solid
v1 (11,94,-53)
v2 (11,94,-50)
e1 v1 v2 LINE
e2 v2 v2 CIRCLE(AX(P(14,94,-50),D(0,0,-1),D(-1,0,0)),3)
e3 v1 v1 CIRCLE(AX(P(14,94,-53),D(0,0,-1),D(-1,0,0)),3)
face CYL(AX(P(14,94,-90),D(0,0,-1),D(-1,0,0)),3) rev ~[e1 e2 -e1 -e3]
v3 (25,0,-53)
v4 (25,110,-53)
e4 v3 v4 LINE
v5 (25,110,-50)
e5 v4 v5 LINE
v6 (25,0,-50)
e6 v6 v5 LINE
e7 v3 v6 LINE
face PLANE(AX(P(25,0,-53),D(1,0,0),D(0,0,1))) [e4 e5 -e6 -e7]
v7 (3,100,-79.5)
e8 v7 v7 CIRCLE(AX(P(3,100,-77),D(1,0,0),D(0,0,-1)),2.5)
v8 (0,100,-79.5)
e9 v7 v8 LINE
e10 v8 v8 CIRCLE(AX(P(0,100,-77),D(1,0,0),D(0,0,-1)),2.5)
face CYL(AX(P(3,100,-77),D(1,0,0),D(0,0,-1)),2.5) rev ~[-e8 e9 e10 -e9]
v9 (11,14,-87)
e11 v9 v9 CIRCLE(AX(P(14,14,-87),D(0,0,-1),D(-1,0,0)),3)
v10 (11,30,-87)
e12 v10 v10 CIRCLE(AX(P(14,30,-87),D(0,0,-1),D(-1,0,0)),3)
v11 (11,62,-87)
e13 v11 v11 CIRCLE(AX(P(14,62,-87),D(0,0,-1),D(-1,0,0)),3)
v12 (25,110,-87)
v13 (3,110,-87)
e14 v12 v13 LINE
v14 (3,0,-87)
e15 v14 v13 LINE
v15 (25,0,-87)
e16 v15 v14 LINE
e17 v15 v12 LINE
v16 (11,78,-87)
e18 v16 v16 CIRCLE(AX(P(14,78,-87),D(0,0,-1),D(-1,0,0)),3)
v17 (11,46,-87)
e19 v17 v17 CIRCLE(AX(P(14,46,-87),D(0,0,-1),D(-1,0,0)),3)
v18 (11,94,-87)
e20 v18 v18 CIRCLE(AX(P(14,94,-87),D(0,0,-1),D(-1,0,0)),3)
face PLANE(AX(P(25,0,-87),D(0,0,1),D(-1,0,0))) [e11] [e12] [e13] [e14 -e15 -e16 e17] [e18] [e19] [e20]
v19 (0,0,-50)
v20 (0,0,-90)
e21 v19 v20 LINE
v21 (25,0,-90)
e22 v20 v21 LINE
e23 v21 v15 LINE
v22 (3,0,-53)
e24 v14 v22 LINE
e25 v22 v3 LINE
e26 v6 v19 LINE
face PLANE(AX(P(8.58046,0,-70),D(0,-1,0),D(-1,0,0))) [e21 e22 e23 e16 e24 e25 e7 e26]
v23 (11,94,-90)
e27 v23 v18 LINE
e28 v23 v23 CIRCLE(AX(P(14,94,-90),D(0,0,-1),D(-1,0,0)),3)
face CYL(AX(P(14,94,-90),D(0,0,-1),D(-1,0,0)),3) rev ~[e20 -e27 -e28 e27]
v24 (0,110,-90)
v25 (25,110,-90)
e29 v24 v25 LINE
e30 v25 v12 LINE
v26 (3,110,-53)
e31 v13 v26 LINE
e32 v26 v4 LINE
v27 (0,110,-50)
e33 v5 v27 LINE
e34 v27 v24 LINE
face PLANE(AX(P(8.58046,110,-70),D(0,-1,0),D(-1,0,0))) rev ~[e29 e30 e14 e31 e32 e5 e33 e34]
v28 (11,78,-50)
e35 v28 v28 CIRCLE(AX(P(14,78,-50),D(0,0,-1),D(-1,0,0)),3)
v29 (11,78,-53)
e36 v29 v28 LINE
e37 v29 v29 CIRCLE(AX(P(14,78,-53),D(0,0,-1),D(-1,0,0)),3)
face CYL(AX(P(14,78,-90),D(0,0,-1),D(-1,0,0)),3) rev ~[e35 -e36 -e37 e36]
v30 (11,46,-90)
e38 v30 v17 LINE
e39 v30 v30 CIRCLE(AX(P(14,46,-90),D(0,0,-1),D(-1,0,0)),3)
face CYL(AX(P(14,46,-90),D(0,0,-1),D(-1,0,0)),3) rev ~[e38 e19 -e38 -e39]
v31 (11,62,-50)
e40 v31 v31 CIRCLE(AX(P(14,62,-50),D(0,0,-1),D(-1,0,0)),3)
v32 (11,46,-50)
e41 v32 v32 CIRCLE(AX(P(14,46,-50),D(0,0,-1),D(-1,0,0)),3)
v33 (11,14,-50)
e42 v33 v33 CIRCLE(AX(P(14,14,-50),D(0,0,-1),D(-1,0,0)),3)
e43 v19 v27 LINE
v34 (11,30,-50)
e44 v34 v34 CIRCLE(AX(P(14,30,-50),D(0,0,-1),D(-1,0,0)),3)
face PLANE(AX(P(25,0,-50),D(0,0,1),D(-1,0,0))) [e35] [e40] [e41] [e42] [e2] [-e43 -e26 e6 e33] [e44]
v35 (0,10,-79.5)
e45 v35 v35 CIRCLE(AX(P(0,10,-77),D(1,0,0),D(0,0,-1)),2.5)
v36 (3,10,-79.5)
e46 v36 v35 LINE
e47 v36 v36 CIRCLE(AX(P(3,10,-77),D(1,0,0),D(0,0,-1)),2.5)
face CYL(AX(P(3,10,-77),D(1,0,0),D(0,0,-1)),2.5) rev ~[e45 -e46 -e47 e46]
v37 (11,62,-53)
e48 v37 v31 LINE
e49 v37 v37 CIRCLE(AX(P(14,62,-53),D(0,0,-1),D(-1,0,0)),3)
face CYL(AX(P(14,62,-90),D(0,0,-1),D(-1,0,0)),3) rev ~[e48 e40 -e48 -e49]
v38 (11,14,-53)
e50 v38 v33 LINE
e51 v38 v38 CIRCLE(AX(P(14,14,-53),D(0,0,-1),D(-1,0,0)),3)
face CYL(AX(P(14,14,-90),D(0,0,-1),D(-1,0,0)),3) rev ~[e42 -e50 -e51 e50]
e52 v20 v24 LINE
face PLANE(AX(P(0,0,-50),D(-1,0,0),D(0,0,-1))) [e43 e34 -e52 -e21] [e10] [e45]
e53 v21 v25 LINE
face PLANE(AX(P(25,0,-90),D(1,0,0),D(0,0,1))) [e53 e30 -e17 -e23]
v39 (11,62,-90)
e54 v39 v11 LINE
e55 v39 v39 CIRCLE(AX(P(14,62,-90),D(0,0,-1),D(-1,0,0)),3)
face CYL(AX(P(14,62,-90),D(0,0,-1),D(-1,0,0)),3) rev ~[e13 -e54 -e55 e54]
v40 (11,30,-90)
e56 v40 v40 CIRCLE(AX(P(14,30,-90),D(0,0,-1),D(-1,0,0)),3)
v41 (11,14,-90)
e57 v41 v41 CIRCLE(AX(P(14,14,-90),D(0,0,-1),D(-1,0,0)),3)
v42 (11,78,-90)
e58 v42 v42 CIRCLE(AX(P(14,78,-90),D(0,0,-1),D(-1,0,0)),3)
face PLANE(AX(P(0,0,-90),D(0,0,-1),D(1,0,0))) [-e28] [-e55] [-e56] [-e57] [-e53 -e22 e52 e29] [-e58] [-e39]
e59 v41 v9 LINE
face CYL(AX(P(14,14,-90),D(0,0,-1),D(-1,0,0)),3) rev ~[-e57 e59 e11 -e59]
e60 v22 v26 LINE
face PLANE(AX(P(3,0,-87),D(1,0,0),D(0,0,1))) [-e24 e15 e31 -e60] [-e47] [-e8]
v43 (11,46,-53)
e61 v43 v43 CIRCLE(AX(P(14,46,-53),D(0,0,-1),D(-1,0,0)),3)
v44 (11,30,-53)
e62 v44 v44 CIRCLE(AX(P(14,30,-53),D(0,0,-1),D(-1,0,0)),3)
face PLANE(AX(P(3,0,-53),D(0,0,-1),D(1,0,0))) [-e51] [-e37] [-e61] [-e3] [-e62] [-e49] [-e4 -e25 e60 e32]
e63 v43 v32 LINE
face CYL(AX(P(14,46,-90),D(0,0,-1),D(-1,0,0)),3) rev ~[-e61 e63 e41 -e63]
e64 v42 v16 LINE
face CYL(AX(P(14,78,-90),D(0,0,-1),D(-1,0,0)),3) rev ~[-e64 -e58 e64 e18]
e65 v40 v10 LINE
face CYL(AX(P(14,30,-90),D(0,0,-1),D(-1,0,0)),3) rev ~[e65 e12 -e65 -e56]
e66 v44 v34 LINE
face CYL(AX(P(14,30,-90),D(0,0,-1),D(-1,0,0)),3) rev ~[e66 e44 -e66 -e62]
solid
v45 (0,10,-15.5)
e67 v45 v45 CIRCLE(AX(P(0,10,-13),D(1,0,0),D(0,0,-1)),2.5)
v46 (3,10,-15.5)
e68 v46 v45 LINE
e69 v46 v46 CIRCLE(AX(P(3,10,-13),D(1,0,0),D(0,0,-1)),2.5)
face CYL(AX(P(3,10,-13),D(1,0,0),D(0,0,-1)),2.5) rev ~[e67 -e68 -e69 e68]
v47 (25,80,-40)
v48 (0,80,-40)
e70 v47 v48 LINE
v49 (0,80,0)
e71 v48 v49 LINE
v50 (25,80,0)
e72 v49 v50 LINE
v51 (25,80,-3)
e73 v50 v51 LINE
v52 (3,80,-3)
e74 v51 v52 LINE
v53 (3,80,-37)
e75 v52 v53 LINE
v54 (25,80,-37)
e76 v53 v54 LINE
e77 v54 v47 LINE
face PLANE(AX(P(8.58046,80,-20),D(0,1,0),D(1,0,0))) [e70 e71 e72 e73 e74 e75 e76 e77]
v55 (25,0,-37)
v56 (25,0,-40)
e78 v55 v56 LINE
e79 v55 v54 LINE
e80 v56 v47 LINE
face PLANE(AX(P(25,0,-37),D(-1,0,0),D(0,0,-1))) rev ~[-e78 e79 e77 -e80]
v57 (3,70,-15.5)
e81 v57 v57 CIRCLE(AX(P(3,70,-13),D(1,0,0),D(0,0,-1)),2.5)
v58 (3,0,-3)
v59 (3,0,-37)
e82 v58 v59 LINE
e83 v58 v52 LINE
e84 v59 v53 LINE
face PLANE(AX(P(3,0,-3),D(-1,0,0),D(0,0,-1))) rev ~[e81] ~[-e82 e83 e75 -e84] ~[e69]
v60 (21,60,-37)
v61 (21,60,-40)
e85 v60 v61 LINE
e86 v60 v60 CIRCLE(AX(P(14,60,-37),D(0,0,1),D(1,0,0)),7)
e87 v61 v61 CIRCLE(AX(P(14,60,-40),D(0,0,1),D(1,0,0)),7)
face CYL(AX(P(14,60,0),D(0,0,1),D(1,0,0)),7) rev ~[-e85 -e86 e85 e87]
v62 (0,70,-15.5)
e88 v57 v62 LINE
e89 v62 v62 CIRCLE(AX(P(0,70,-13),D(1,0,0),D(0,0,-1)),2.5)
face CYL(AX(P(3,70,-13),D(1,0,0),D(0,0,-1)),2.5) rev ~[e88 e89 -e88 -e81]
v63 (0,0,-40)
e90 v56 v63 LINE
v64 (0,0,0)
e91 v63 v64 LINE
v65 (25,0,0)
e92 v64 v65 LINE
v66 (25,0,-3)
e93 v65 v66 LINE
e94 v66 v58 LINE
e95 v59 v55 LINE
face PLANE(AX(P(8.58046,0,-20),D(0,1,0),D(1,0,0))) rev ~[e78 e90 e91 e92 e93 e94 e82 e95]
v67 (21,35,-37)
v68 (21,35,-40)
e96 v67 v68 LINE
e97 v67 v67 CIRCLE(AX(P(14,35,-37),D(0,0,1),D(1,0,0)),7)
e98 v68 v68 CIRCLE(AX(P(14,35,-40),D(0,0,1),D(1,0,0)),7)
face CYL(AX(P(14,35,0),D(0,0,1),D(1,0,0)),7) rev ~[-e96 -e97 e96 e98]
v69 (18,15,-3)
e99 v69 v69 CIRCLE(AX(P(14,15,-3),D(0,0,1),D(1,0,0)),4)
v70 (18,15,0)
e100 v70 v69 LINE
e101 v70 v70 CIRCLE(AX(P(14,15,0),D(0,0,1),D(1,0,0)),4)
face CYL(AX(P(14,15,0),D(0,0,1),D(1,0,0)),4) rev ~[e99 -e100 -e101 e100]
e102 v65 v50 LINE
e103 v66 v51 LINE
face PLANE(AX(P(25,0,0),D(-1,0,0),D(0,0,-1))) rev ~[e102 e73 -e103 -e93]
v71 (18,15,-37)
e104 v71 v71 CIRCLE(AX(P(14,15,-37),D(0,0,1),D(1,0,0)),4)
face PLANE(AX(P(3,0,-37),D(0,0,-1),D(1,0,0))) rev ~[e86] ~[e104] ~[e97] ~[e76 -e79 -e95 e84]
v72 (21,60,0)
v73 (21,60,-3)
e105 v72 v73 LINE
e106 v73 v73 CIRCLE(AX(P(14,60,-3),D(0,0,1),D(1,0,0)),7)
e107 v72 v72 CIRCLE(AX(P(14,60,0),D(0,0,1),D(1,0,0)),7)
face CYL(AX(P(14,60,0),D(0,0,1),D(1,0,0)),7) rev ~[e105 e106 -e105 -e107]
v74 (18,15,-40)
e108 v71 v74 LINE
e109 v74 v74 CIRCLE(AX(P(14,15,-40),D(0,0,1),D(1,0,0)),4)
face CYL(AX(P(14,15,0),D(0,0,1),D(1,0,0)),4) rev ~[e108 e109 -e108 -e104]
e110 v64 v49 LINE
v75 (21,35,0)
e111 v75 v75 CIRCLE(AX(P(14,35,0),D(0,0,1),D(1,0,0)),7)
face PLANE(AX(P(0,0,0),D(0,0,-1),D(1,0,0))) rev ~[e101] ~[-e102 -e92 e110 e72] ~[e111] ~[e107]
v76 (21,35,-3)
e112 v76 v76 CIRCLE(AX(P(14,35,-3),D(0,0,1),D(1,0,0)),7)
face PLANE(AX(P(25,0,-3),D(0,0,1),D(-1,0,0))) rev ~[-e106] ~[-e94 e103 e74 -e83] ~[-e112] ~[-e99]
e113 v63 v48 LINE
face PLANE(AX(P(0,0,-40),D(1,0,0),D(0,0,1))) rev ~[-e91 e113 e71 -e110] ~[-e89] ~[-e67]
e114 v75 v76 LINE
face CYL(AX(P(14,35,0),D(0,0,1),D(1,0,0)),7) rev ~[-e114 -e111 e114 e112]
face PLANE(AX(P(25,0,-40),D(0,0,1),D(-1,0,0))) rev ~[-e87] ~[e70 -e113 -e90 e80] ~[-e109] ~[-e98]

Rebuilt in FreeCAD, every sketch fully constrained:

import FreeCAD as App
import Part
import Sketcher


def add_polygon(sketch, points):
    """Adds a closed chain of lines whose ends are joined by coincident constraints."""
    first, n = sketch.GeometryCount, len(points)
    for a, b in zip(points, points[1:] + points[:1]):
        sketch.addGeometry(Part.LineSegment(App.Vector(*a, 0), App.Vector(*b, 0)), False)
    for i in range(n):
        sketch.addConstraint(Sketcher.Constraint("Coincident", first + i, 2, first + (i + 1) % n, 1))

doc = App.newDocument("Part")
params = doc.addObject("Spreadsheet::Sheet", "Params")
for row, (alias, value) in enumerate([
    ("sketch1_width", "25 mm"),
    ("sketch1_width2", "22 mm"),
    ("sketch1_height", "3 mm"),
    ("sketch1_height2", "34 mm"),
    ("pad1_length", "80 mm"),
    ("sketch2_diameter", "14 mm"),
    ("sketch2_diameter2", "8 mm"),
    ("pocket1_length", "40 mm"),
    ("sketch3_width", "25 mm"),
    ("sketch3_width2", "22 mm"),
    ("sketch3_height", "3 mm"),
    ("sketch3_height2", "40 mm"),
    ("pad2_length", "110 mm"),
    ("sketch4_diameter", "6 mm"),
    ("pocket2_length", "40 mm"),
    ("sketch5_diameter", "5 mm"),
    ("pad3_length", "40 mm"),
], start=1):
    params.set(f"A{row}", alias)
    params.set(f"B{row}", "=" + value)
    params.setAlias(f"B{row}", alias)

body = doc.addObject("PartDesign::Body", "Body")

sketch1 = doc.addObject("Sketcher::SketchObject", "Sketch")
body.addObject(sketch1)
sketch1.AttachmentSupport = (doc.XZ_Plane, [""])
sketch1.MapMode = "FlatFace"
add_polygon(sketch1, [(0, 0), (25, 0), (25, -3), (3, -3), (3, -37), (25, -37), (25, -40), (0, -40)])
sketch1.addConstraint(Sketcher.Constraint("Horizontal", 0))
sketch1.addConstraint(Sketcher.Constraint("Vertical", 1))
sketch1.addConstraint(Sketcher.Constraint("Horizontal", 2))
sketch1.addConstraint(Sketcher.Constraint("Vertical", 3))
sketch1.addConstraint(Sketcher.Constraint("Horizontal", 4))
sketch1.addConstraint(Sketcher.Constraint("Vertical", 5))
sketch1.addConstraint(Sketcher.Constraint("Horizontal", 6))
sketch1.addConstraint(Sketcher.Constraint("Vertical", 7))
sketch1.addConstraint(Sketcher.Constraint("Coincident", 7, 2, -1, 1))
sketch1.addConstraint(Sketcher.Constraint("Vertical", 1, 2, 4, 2))
sketch1.addConstraint(Sketcher.Constraint("Equal", 1, 5))
sketch1.addConstraint(Sketcher.Constraint("DistanceX", 0, 1, 0, 2, 25.0))
sketch1.addConstraint(Sketcher.Constraint("DistanceX", 2, 2, 2, 1, 22.0))
sketch1.addConstraint(Sketcher.Constraint("DistanceY", 1, 2, 1, 1, 3.0))
sketch1.addConstraint(Sketcher.Constraint("DistanceY", 3, 2, 3, 1, 34.0))
sketch1.setExpression("Constraints[19]", "Params.sketch1_width")
sketch1.setExpression("Constraints[20]", "Params.sketch1_width2")
sketch1.setExpression("Constraints[21]", "Params.sketch1_height")
sketch1.setExpression("Constraints[22]", "Params.sketch1_height2")
pad1 = doc.addObject("PartDesign::Pad", "Pad")
body.addObject(pad1)
pad1.Profile = sketch1
pad1.setExpression("Length", "Params.pad1_length")
pad1.Reversed = True

sketch2 = doc.addObject("Sketcher::SketchObject", "Sketch001")
body.addObject(sketch2)
sketch2.AttachmentSupport = (doc.XY_Plane, [""])
sketch2.MapMode = "FlatFace"
sketch2.addGeometry(Part.Circle(App.Vector(14, 60, 0), App.Vector(0, 0, 1), 7), False)
sketch2.addGeometry(Part.Circle(App.Vector(14, 35, 0), App.Vector(0, 0, 1), 7), False)
sketch2.addGeometry(Part.Circle(App.Vector(14, 15, 0), App.Vector(0, 0, 1), 4), False)
sketch2.addConstraint(Sketcher.Constraint("Equal", 0, 1))
sketch2.addConstraint(Sketcher.Constraint("Vertical", 0, 3, 1, 3))
sketch2.addConstraint(Sketcher.Constraint("Vertical", 1, 3, 2, 3))
sketch2.addConstraint(Sketcher.Constraint("Diameter", 0, 14.0))
sketch2.addConstraint(Sketcher.Constraint("Diameter", 2, 8.0))
sketch2.addConstraint(Sketcher.Constraint("DistanceX", -1, 1, 0, 3, 14.0))
sketch2.addConstraint(Sketcher.Constraint("DistanceY", -1, 1, 0, 3, 60.0))
sketch2.addConstraint(Sketcher.Constraint("DistanceY", -1, 1, 1, 3, 35.0))
sketch2.addConstraint(Sketcher.Constraint("DistanceY", -1, 1, 2, 3, 15.0))
sketch2.setExpression("Constraints[3]", "Params.sketch2_diameter")
sketch2.setExpression("Constraints[4]", "Params.sketch2_diameter2")
pocket1 = doc.addObject("PartDesign::Pocket", "Pocket")
body.addObject(pocket1)
pocket1.Profile = sketch2
pocket1.setExpression("Length", "Params.pocket1_length")
body2 = doc.addObject("PartDesign::Body", "Body001")

sketch3 = doc.addObject("Sketcher::SketchObject", "Sketch002")
body2.addObject(sketch3)
sketch3.AttachmentSupport = (doc.getObject("XZ_Plane001"), [""])
sketch3.MapMode = "FlatFace"
add_polygon(sketch3, [(25, -87), (25, -90), (0, -90), (0, -50), (25, -50), (25, -53), (3, -53), (3, -87)])
sketch3.addConstraint(Sketcher.Constraint("Vertical", 0))
sketch3.addConstraint(Sketcher.Constraint("Horizontal", 1))
sketch3.addConstraint(Sketcher.Constraint("Vertical", 2))
sketch3.addConstraint(Sketcher.Constraint("Horizontal", 3))
sketch3.addConstraint(Sketcher.Constraint("Vertical", 4))
sketch3.addConstraint(Sketcher.Constraint("Horizontal", 5))
sketch3.addConstraint(Sketcher.Constraint("Vertical", 6))
sketch3.addConstraint(Sketcher.Constraint("Horizontal", 7))
sketch3.addConstraint(Sketcher.Constraint("PointOnObject", 1, 2, -2))
sketch3.addConstraint(Sketcher.Constraint("Vertical", 0, 2, 3, 2))
sketch3.addConstraint(Sketcher.Constraint("Equal", 0, 4))
sketch3.addConstraint(Sketcher.Constraint("DistanceX", 1, 2, 1, 1, 25.0))
sketch3.addConstraint(Sketcher.Constraint("DistanceX", 5, 2, 5, 1, 22.0))
sketch3.addConstraint(Sketcher.Constraint("DistanceY", 0, 2, 0, 1, 3.0))
sketch3.addConstraint(Sketcher.Constraint("DistanceY", 2, 1, 2, 2, 40.0))
sketch3.addConstraint(Sketcher.Constraint("DistanceY", 0, 2, -1, 1, 90.0))
sketch3.setExpression("Constraints[19]", "Params.sketch3_width")
sketch3.setExpression("Constraints[20]", "Params.sketch3_width2")
sketch3.setExpression("Constraints[21]", "Params.sketch3_height")
sketch3.setExpression("Constraints[22]", "Params.sketch3_height2")
pad2 = doc.addObject("PartDesign::Pad", "Pad001")
body2.addObject(pad2)
pad2.Profile = sketch3
pad2.setExpression("Length", "Params.pad2_length")
pad2.Reversed = True

sketch4 = doc.addObject("Sketcher::SketchObject", "Sketch003")
body2.addObject(sketch4)
sketch4.AttachmentSupport = (doc.getObject("XY_Plane001"), [""])
sketch4.MapMode = "FlatFace"
sketch4.AttachmentOffset = App.Placement(App.Vector(0, 0, -90), App.Rotation())
sketch4.addGeometry(Part.Circle(App.Vector(14, 94, 0), App.Vector(0, 0, 1), 3), False)
sketch4.addGeometry(Part.Circle(App.Vector(14, 78, 0), App.Vector(0, 0, 1), 3), False)
sketch4.addGeometry(Part.Circle(App.Vector(14, 62, 0), App.Vector(0, 0, 1), 3), False)
sketch4.addGeometry(Part.Circle(App.Vector(14, 46, 0), App.Vector(0, 0, 1), 3), False)
sketch4.addGeometry(Part.Circle(App.Vector(14, 30, 0), App.Vector(0, 0, 1), 3), False)
sketch4.addGeometry(Part.Circle(App.Vector(14, 14, 0), App.Vector(0, 0, 1), 3), False)
sketch4.addConstraint(Sketcher.Constraint("Equal", 0, 1))
sketch4.addConstraint(Sketcher.Constraint("Equal", 1, 2))
sketch4.addConstraint(Sketcher.Constraint("Equal", 2, 3))
sketch4.addConstraint(Sketcher.Constraint("Equal", 3, 4))
sketch4.addConstraint(Sketcher.Constraint("Equal", 4, 5))
sketch4.addConstraint(Sketcher.Constraint("Vertical", 0, 3, 1, 3))
sketch4.addConstraint(Sketcher.Constraint("Vertical", 1, 3, 2, 3))
sketch4.addConstraint(Sketcher.Constraint("Vertical", 2, 3, 3, 3))
sketch4.addConstraint(Sketcher.Constraint("Vertical", 3, 3, 4, 3))
sketch4.addConstraint(Sketcher.Constraint("Vertical", 4, 3, 5, 3))
sketch4.addConstraint(Sketcher.Constraint("Diameter", 0, 6.0))
sketch4.addConstraint(Sketcher.Constraint("DistanceX", -1, 1, 0, 3, 14.0))
sketch4.addConstraint(Sketcher.Constraint("DistanceY", -1, 1, 0, 3, 94.0))
sketch4.addConstraint(Sketcher.Constraint("DistanceY", -1, 1, 1, 3, 78.0))
sketch4.addConstraint(Sketcher.Constraint("DistanceY", -1, 1, 2, 3, 62.0))
sketch4.addConstraint(Sketcher.Constraint("DistanceY", -1, 1, 3, 3, 46.0))
sketch4.addConstraint(Sketcher.Constraint("DistanceY", -1, 1, 4, 3, 30.0))
sketch4.addConstraint(Sketcher.Constraint("DistanceY", -1, 1, 5, 3, 14.0))
sketch4.setExpression("Constraints[10]", "Params.sketch4_diameter")
pocket2 = doc.addObject("PartDesign::Pocket", "Pocket001")
body2.addObject(pocket2)
pocket2.Profile = sketch4
pocket2.setExpression("Length", "Params.pocket2_length")
pocket2.Reversed = True
body3 = doc.addObject("PartDesign::Body", "Body002")
body3.AllowCompound = True

sketch5 = doc.addObject("Sketcher::SketchObject", "Sketch004")
body3.addObject(sketch5)
sketch5.AttachmentSupport = (doc.getObject("YZ_Plane002"), [""])
sketch5.MapMode = "FlatFace"
sketch5.AttachmentOffset = App.Placement(App.Vector(0, 0, 3), App.Rotation())
sketch5.addGeometry(Part.Circle(App.Vector(100, -77, 0), App.Vector(0, 0, 1), 2.5), False)
sketch5.addGeometry(Part.Circle(App.Vector(10, -77, 0), App.Vector(0, 0, 1), 2.5), False)
sketch5.addGeometry(Part.Circle(App.Vector(10, -13, 0), App.Vector(0, 0, 1), 2.5), False)
sketch5.addGeometry(Part.Circle(App.Vector(70, -13, 0), App.Vector(0, 0, 1), 2.5), False)
sketch5.addConstraint(Sketcher.Constraint("Equal", 0, 1))
sketch5.addConstraint(Sketcher.Constraint("Equal", 1, 2))
sketch5.addConstraint(Sketcher.Constraint("Equal", 2, 3))
sketch5.addConstraint(Sketcher.Constraint("Horizontal", 0, 3, 1, 3))
sketch5.addConstraint(Sketcher.Constraint("Horizontal", 2, 3, 3, 3))
sketch5.addConstraint(Sketcher.Constraint("Vertical", 1, 3, 2, 3))
sketch5.addConstraint(Sketcher.Constraint("Diameter", 0, 5.0))
sketch5.addConstraint(Sketcher.Constraint("DistanceX", -1, 1, 0, 3, 100.0))
sketch5.addConstraint(Sketcher.Constraint("DistanceY", 0, 3, -1, 1, 77.0))
sketch5.addConstraint(Sketcher.Constraint("DistanceX", -1, 1, 1, 3, 10.0))
sketch5.addConstraint(Sketcher.Constraint("DistanceY", 2, 3, -1, 1, 13.0))
sketch5.addConstraint(Sketcher.Constraint("DistanceX", -1, 1, 3, 3, 70.0))
sketch5.setExpression("Constraints[6]", "Params.sketch5_diameter")
pad3 = doc.addObject("PartDesign::Pad", "Pad002")
body3.addObject(pad3)
pad3.Profile = sketch5
pad3.setExpression("Length", "Params.pad3_length")
pad3.Reversed = True
doc.recompute()

body4 = doc.addObject("PartDesign::Body", "Body003")
body4.BaseFeature = body3
boolean = doc.addObject("PartDesign::Boolean", "Boolean")
body.addObject(boolean)
boolean.Type = "Cut"
boolean.addObjects([body4])
doc.recompute()

boolean2 = doc.addObject("PartDesign::Boolean", "Boolean001")
body2.addObject(boolean2)
boolean2.Type = "Cut"
boolean2.addObjects([body3])

doc.recompute()
